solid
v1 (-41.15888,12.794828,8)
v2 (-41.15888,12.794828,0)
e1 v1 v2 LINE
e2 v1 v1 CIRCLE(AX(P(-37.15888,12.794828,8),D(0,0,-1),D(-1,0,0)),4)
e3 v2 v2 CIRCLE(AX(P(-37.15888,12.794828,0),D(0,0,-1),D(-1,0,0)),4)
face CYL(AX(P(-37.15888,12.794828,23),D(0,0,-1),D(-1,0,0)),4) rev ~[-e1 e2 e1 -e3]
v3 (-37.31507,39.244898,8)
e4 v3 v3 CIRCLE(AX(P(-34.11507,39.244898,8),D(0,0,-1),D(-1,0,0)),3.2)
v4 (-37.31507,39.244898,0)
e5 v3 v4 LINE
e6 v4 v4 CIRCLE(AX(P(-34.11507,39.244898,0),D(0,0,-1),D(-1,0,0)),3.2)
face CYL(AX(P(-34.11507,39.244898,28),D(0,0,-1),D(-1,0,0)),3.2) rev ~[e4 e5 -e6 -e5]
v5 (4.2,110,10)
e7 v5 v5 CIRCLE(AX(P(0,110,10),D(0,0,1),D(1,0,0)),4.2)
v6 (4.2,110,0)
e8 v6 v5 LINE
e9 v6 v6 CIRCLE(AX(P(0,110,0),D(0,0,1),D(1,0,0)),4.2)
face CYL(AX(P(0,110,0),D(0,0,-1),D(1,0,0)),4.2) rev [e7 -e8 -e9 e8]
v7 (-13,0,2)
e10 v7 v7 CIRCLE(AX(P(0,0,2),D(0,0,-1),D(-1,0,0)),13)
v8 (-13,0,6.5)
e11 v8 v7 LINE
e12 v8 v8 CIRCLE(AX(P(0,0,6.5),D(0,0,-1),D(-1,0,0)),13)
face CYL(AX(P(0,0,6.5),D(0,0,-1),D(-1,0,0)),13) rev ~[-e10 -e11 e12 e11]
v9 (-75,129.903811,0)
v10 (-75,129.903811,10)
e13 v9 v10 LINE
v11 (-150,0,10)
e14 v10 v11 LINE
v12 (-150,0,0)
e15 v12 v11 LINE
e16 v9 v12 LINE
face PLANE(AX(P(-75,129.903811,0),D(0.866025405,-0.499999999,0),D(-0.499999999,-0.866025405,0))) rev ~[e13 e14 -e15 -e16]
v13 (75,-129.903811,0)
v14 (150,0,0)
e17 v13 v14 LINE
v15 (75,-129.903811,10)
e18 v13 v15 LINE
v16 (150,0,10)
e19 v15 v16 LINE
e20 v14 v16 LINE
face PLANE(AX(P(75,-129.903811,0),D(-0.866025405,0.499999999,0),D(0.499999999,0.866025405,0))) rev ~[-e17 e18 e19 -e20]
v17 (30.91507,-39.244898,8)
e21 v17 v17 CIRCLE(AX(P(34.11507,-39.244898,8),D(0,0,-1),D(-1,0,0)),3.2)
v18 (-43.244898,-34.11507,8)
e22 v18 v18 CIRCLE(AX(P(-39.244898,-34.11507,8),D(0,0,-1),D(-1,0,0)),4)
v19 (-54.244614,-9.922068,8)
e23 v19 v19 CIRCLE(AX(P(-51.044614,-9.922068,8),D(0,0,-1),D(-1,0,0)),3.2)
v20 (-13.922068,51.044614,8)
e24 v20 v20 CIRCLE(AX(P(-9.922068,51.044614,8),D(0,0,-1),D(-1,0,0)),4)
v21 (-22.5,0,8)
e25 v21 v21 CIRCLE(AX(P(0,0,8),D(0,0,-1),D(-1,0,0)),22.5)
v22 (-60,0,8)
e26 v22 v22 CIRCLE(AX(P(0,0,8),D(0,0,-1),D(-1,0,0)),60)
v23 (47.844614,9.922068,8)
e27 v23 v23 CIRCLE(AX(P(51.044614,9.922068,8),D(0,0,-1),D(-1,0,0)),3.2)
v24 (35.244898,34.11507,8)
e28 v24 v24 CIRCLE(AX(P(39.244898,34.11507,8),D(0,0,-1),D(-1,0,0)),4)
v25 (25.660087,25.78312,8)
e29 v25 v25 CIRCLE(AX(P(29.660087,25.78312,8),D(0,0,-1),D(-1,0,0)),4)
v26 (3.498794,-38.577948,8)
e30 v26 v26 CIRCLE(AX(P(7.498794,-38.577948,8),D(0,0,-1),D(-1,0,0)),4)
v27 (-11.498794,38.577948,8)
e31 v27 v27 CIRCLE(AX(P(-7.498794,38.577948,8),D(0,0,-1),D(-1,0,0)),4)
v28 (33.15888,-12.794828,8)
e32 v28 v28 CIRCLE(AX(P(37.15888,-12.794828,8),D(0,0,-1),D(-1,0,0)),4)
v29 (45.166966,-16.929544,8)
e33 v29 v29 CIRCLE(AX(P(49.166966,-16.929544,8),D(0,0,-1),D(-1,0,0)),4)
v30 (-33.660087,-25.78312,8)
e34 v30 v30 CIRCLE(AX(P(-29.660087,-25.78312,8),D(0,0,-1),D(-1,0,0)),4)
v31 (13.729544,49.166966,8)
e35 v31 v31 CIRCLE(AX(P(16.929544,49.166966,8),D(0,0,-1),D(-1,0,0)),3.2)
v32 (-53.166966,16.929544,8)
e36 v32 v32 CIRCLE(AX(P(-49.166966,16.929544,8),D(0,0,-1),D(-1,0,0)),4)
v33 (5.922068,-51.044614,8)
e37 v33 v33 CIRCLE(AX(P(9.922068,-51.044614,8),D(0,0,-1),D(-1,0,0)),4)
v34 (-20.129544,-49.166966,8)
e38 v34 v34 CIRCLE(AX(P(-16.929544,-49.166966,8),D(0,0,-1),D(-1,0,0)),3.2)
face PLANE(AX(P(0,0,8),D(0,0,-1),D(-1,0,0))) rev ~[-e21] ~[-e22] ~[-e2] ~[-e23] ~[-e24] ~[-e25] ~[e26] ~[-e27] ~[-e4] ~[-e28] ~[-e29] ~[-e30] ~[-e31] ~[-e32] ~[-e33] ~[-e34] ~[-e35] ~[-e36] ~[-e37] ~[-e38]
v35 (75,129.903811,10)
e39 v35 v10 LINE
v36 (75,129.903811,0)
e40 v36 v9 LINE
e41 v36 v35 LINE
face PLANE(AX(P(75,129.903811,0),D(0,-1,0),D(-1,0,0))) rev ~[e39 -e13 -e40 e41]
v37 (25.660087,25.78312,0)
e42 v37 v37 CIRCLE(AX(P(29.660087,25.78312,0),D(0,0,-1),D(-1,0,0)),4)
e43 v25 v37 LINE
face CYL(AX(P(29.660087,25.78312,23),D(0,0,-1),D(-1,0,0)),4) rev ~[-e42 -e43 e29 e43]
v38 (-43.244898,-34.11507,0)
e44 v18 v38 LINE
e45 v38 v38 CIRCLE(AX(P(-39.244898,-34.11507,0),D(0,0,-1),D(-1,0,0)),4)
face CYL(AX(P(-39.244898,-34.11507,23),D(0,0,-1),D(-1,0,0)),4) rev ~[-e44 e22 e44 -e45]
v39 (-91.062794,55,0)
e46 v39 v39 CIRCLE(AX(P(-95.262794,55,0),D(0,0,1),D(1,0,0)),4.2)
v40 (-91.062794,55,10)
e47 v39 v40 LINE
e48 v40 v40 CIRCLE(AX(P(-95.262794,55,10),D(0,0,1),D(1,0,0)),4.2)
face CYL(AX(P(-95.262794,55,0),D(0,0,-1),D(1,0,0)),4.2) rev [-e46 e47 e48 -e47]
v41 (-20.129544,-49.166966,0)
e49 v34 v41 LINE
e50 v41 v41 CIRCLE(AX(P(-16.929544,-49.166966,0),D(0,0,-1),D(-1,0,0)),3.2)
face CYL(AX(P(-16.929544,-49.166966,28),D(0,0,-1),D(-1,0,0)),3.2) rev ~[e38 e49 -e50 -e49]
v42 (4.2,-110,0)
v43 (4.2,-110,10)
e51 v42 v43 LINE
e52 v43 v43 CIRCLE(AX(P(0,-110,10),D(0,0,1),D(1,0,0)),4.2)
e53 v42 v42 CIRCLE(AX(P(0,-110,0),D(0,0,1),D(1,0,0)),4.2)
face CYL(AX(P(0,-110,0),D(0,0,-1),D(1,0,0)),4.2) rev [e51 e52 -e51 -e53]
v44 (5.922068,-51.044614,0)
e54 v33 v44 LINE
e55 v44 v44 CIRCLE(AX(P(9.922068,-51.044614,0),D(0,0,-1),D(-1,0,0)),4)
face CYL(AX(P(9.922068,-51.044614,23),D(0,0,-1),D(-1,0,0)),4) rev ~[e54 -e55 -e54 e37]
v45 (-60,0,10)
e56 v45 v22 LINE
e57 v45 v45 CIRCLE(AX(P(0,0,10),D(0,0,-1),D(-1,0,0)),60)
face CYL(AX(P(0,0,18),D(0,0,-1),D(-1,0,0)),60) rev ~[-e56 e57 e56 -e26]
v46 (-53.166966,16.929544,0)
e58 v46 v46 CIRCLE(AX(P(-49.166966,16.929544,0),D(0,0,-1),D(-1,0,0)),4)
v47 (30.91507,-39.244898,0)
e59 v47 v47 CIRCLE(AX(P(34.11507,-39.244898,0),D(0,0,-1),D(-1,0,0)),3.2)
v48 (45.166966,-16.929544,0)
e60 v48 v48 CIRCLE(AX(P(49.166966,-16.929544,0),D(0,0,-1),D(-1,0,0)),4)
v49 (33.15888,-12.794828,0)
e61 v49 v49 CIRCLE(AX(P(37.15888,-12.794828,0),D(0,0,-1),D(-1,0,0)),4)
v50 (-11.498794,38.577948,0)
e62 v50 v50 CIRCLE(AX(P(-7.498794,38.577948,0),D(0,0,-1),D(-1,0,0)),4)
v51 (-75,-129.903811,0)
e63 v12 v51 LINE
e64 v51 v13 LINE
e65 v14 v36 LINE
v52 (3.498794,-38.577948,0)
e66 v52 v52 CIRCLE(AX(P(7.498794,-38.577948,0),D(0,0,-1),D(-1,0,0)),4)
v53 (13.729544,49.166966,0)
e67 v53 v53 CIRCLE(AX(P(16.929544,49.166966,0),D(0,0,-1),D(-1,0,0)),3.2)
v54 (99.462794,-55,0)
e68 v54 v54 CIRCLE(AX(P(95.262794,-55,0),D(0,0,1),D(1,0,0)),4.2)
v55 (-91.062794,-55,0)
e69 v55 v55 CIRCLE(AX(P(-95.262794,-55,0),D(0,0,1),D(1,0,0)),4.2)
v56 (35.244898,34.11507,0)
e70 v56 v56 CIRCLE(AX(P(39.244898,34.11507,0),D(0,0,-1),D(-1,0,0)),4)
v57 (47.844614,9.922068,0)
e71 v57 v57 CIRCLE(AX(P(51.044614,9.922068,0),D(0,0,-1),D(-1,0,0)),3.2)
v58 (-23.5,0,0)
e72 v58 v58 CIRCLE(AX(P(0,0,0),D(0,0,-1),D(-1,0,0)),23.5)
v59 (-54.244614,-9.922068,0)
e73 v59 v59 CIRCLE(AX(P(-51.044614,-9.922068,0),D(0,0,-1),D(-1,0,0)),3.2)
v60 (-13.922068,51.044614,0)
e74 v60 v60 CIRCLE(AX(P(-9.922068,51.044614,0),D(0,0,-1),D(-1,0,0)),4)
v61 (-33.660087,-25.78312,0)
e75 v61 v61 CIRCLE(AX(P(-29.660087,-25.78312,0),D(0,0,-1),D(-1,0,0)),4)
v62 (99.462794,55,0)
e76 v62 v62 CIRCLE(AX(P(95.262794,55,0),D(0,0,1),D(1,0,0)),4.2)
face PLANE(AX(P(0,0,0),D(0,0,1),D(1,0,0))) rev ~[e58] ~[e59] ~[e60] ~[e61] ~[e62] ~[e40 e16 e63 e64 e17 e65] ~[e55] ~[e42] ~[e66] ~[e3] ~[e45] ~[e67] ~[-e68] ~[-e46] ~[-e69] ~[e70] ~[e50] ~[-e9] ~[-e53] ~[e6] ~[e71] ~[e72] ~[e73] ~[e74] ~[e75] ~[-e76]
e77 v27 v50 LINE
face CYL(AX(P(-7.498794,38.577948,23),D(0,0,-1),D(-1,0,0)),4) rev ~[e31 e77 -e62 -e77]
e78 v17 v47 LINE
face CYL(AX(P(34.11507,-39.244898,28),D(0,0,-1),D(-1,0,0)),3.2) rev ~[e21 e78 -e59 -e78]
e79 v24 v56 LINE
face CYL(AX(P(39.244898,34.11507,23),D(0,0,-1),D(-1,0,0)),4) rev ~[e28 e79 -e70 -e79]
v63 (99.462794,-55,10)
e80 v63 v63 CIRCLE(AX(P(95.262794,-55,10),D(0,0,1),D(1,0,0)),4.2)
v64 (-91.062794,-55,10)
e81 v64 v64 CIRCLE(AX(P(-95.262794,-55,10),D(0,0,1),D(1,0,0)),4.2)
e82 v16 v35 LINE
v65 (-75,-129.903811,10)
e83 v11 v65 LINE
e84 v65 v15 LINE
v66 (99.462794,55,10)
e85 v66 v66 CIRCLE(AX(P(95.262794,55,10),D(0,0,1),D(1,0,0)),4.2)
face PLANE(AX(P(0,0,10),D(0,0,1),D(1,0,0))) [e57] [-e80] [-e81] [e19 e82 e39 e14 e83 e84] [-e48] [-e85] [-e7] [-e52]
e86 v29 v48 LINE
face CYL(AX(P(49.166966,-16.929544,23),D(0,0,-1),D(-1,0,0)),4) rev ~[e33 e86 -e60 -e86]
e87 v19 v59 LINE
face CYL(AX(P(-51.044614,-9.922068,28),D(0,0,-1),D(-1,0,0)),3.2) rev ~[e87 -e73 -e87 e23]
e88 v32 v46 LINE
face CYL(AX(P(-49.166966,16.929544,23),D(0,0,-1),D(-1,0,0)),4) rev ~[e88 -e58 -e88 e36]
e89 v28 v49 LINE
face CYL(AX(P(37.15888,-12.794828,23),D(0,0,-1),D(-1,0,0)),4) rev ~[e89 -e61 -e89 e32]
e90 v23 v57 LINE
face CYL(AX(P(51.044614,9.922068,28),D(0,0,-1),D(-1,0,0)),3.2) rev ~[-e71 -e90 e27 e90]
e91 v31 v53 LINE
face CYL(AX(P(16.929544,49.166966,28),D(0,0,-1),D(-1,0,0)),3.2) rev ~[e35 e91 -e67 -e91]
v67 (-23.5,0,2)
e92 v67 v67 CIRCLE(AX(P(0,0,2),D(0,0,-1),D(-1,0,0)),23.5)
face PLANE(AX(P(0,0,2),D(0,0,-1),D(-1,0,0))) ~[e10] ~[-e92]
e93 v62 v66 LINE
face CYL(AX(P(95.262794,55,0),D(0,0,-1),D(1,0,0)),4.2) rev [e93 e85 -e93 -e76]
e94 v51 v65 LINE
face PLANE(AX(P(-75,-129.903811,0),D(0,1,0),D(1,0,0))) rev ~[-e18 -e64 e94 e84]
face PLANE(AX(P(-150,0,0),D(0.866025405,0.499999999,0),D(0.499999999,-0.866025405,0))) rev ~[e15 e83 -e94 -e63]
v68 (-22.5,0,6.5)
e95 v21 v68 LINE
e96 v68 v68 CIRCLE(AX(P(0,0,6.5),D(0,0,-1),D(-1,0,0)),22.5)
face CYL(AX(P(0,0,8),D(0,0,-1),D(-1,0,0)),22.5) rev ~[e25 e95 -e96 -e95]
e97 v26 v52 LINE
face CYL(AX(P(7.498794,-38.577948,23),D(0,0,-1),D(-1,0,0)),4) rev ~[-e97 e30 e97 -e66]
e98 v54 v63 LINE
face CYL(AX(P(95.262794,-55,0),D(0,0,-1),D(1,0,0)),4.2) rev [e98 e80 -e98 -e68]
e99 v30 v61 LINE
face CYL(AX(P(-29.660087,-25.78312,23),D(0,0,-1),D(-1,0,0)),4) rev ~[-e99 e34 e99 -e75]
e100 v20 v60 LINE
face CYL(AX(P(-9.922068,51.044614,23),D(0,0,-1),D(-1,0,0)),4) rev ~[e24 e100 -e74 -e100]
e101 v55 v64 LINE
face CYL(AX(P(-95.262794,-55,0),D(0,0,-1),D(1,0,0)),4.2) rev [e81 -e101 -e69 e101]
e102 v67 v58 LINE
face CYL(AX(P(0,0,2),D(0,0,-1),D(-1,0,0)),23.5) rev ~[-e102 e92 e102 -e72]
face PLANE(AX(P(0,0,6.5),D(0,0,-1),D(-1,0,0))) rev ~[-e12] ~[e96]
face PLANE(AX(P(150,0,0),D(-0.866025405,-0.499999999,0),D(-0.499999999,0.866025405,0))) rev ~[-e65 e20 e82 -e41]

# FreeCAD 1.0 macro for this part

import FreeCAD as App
import Part
import Sketcher
from FreeCAD import Vector
Q = App.Units.Quantity

doc = App.newDocument("Part")
body = doc.addObject("PartDesign::Body", "Body")

# Sketch on XY plane
sketch1 = doc.addObject("Sketcher::SketchObject", "Sketch")
body.addObject(sketch1)
sketch1.AttachmentSupport = (doc.XY_Plane, [""])
sketch1.MapMode = "FlatFace"
sketch1.addGeometry(Part.LineSegment(Vector(75, -129.9, 0), Vector(150, 0, 0)), False)
sketch1.addGeometry(Part.LineSegment(Vector(150, 0, 0), Vector(75, 129.9, 0)), False)
sketch1.addGeometry(Part.LineSegment(Vector(75, 129.9, 0), Vector(-75, 129.9, 0)), False)
sketch1.addGeometry(Part.LineSegment(Vector(-75, 129.9, 0), Vector(-150, 0, 0)), False)
sketch1.addGeometry(Part.LineSegment(Vector(-150, 0, 0), Vector(-75, -129.9, 0)), False)
sketch1.addGeometry(Part.LineSegment(Vector(-75, -129.9, 0), Vector(75, -129.9, 0)), False)
sketch1.addGeometry(Part.Circle(Vector(-95.3, -55, 0), Vector(0, 0, 1), 4.2), False)
sketch1.addGeometry(Part.Circle(Vector(0, -110, 0), Vector(0, 0, 1), 4.2), False)
sketch1.addGeometry(Part.Circle(Vector(95.3, -55, 0), Vector(0, 0, 1), 4.2), False)
sketch1.addGeometry(Part.Circle(Vector(-95.3, 55, 0), Vector(0, 0, 1), 4.2), False)
sketch1.addGeometry(Part.Circle(Vector(95.3, 55, 0), Vector(0, 0, 1), 4.2), False)
sketch1.addGeometry(Part.Circle(Vector(0, 110, 0), Vector(0, 0, 1), 4.2), False)
sketch1.addConstraint(Sketcher.Constraint("Coincident", 0, 2, 1, 1))
sketch1.addConstraint(Sketcher.Constraint("Coincident", 1, 2, 2, 1))
sketch1.addConstraint(Sketcher.Constraint("Coincident", 2, 2, 3, 1))
sketch1.addConstraint(Sketcher.Constraint("Coincident", 3, 2, 4, 1))
sketch1.addConstraint(Sketcher.Constraint("Coincident", 4, 2, 5, 1))
sketch1.addConstraint(Sketcher.Constraint("Coincident", 5, 2, 0, 1))
sketch1.addConstraint(Sketcher.Constraint("Horizontal", 2))
sketch1.addConstraint(Sketcher.Constraint("Horizontal", 5))
sketch1.addConstraint(Sketcher.Constraint("Equal", 6, 7))
sketch1.addConstraint(Sketcher.Constraint("Equal", 7, 8))
sketch1.addConstraint(Sketcher.Constraint("Equal", 8, 9))
sketch1.addConstraint(Sketcher.Constraint("Equal", 9, 10))
sketch1.addConstraint(Sketcher.Constraint("Equal", 10, 11))
sketch1.addConstraint(Sketcher.Constraint("Symmetric", 8, 3, 9, 3, -1, 1))
sketch1.addConstraint(Sketcher.Constraint("Symmetric", 6, 3, 10, 3, -1, 1))
sketch1.addConstraint(Sketcher.Constraint("Symmetric", 7, 3, 11, 3, -1, 1))
sketch1.addConstraint(Sketcher.Constraint("Symmetric", 0, 2, 3, 2, -1, 1))
sketch1.addConstraint(Sketcher.Constraint("Symmetric", 1, 2, 4, 2, -1, 1))
sketch1.addConstraint(Sketcher.Constraint("Symmetric", 6, 3, 8, 3, -2))
sketch1.addConstraint(Sketcher.Constraint("PointOnObject", 7, 3, -2))
sketch1.addConstraint(Sketcher.Constraint("PointOnObject", 0, 2, -1))
sketch1.addConstraint(Sketcher.Constraint("Parallel", 0, 3))
sketch1.addConstraint(Sketcher.Constraint("Vertical", 2, 2, 4, 2))
sketch1.addConstraint(Sketcher.Constraint("Diameter", 6, 8.4))
sketch1.addConstraint(Sketcher.Constraint("DistanceX", 2, 2, 2, 1, 150.0))
sketch1.addConstraint(Sketcher.Constraint("Angle", 0, Q("60 deg")))
sketch1.addConstraint(Sketcher.Constraint("Distance", 0, 150.0))
sketch1.addConstraint(Sketcher.Constraint("DistanceY", 6, 3, -1, 1, 55.0))
sketch1.addConstraint(Sketcher.Constraint("DistanceY", 7, 3, -1, 1, 110.0))
sketch1.addConstraint(Sketcher.Constraint("DistanceX", 6, 3, 8, 3, 190.525588))
pad1 = doc.addObject("PartDesign::Pad", "Pad")
body.addObject(pad1)
pad1.Profile = sketch1
pad1.Length = 10

# Sketch on XZ plane
sketch2 = doc.addObject("Sketcher::SketchObject", "Sketch001")
body.addObject(sketch2)
sketch2.AttachmentSupport = (doc.XZ_Plane, [""])
sketch2.MapMode = "FlatFace"
sketch2.addGeometry(Part.LineSegment(Vector(-23.5, 2, 0), Vector(-23.5, -10, 0)), False)
sketch2.addGeometry(Part.LineSegment(Vector(-23.5, -10, 0), Vector(0, -10, 0)), False)
sketch2.addGeometry(Part.LineSegment(Vector(0, -10, 0), Vector(0, 18, 0)), False)
sketch2.addGeometry(Part.LineSegment(Vector(0, 18, 0), Vector(-60, 18, 0)), False)
sketch2.addGeometry(Part.LineSegment(Vector(-60, 18, 0), Vector(-60, 8, 0)), False)
sketch2.addGeometry(Part.LineSegment(Vector(-60, 8, 0), Vector(-22.5, 8, 0)), False)
sketch2.addGeometry(Part.LineSegment(Vector(-22.5, 8, 0), Vector(-22.5, 6.5, 0)), False)
sketch2.addGeometry(Part.LineSegment(Vector(-22.5, 6.5, 0), Vector(-13, 6.5, 0)), False)
sketch2.addGeometry(Part.LineSegment(Vector(-13, 6.5, 0), Vector(-13, 2, 0)), False)
sketch2.addGeometry(Part.LineSegment(Vector(-13, 2, 0), Vector(-23.5, 2, 0)), False)
sketch2.addConstraint(Sketcher.Constraint("Coincident", 0, 2, 1, 1))
sketch2.addConstraint(Sketcher.Constraint("Coincident", 1, 2, 2, 1))
sketch2.addConstraint(Sketcher.Constraint("Coincident", 2, 2, 3, 1))
sketch2.addConstraint(Sketcher.Constraint("Coincident", 3, 2, 4, 1))
sketch2.addConstraint(Sketcher.Constraint("Coincident", 4, 2, 5, 1))
sketch2.addConstraint(Sketcher.Constraint("Coincident", 5, 2, 6, 1))
sketch2.addConstraint(Sketcher.Constraint("Coincident", 6, 2, 7, 1))
sketch2.addConstraint(Sketcher.Constraint("Coincident", 7, 2, 8, 1))
sketch2.addConstraint(Sketcher.Constraint("Coincident", 8, 2, 9, 1))
sketch2.addConstraint(Sketcher.Constraint("Coincident", 9, 2, 0, 1))
sketch2.addConstraint(Sketcher.Constraint("Vertical", 0))
sketch2.addConstraint(Sketcher.Constraint("Horizontal", 1))
sketch2.addConstraint(Sketcher.Constraint("Vertical", 2))
sketch2.addConstraint(Sketcher.Constraint("Horizontal", 3))
sketch2.addConstraint(Sketcher.Constraint("Vertical", 4))
sketch2.addConstraint(Sketcher.Constraint("Horizontal", 5))
sketch2.addConstraint(Sketcher.Constraint("Vertical", 6))
sketch2.addConstraint(Sketcher.Constraint("Horizontal", 7))
sketch2.addConstraint(Sketcher.Constraint("Vertical", 8))
sketch2.addConstraint(Sketcher.Constraint("Horizontal", 9))
sketch2.addConstraint(Sketcher.Constraint("PointOnObject", 1, 2, -2))
sketch2.addConstraint(Sketcher.Constraint("DistanceX", 3, 2, 3, 1, 60.0))
sketch2.addConstraint(Sketcher.Constraint("DistanceY", 0, 2, 0, 1, 12.0))
sketch2.addConstraint(Sketcher.Constraint("DistanceY", 2, 1, 2, 2, 28.0))
sketch2.addConstraint(Sketcher.Constraint("DistanceY", 4, 2, 4, 1, 10.0))
sketch2.addConstraint(Sketcher.Constraint("DistanceX", 1, 1, 1, 2, 23.5))
sketch2.addConstraint(Sketcher.Constraint("DistanceX", 5, 1, 5, 2, 37.5))
sketch2.addConstraint(Sketcher.Constraint("DistanceX", 7, 1, 7, 2, 9.5))
sketch2.addConstraint(Sketcher.Constraint("DistanceY", 6, 2, 6, 1, 1.5))
sketch2.addConstraint(Sketcher.Constraint("DistanceY", 0, 2, -1, 1, 10.0))
groove = doc.addObject("PartDesign::Groove", "Groove")
body.addObject(groove)
groove.Profile = sketch2
groove.ReferenceAxis = (sketch2, ["V_Axis"])
groove.Angle = 360

# Sketch on XY plane
sketch3 = doc.addObject("Sketcher::SketchObject", "Sketch002")
body.addObject(sketch3)
sketch3.AttachmentSupport = (doc.XY_Plane, [""])
sketch3.MapMode = "FlatFace"
sketch3.AttachmentOffset = App.Placement(Vector(0, 0, 8), App.Rotation())
sketch3.addGeometry(Part.Circle(Vector(-9.9, 51, 0), Vector(0, 0, 1), 4), False)
sketch3.addGeometry(Part.Circle(Vector(39.2, 34.1, 0), Vector(0, 0, 1), 4), False)
sketch3.addGeometry(Part.Circle(Vector(49.2, -16.9, 0), Vector(0, 0, 1), 4), False)
sketch3.addGeometry(Part.Circle(Vector(9.9, -51, 0), Vector(0, 0, 1), 4), False)
sketch3.addGeometry(Part.Circle(Vector(-39.2, -34.1, 0), Vector(0, 0, 1), 4), False)
sketch3.addGeometry(Part.Circle(Vector(-49.2, 16.9, 0), Vector(0, 0, 1), 4), False)
sketch3.addConstraint(Sketcher.Constraint("Equal", 0, 1))
sketch3.addConstraint(Sketcher.Constraint("Equal", 1, 2))
sketch3.addConstraint(Sketcher.Constraint("Equal", 2, 3))
sketch3.addConstraint(Sketcher.Constraint("Equal", 3, 4))
sketch3.addConstraint(Sketcher.Constraint("Equal", 4, 5))
sketch3.addConstraint(Sketcher.Constraint("Symmetric", 0, 3, 3, 3, -1, 1))
sketch3.addConstraint(Sketcher.Constraint("Symmetric", 1, 3, 4, 3, -1, 1))
sketch3.addConstraint(Sketcher.Constraint("Symmetric", 2, 3, 5, 3, -1, 1))
sketch3.addConstraint(Sketcher.Constraint("Diameter", 0, 8.0))
sketch3.addConstraint(Sketcher.Constraint("DistanceX", 3, 3, 2, 3, 39.244898))
sketch3.addConstraint(Sketcher.Constraint("DistanceY", -1, 1, 1, 3, 34.11507))
sketch3.addConstraint(Sketcher.Constraint("DistanceX", 1, 3, 2, 3, 9.922068))
sketch3.addConstraint(Sketcher.Constraint("DistanceY", 2, 3, 0, 3, 67.974158))
sketch3.addConstraint(Sketcher.Constraint("DistanceY", 3, 3, 2, 3, 34.11507))
sketch3.addConstraint(Sketcher.Constraint("DistanceX", 0, 3, -1, 1, 9.922068))
doc.recompute()
hole = doc.addObject("PartDesign::Hole", "Hole")
body.addObject(hole)
hole.Profile = sketch3
hole.ThreadType = "None"
hole.Diameter = 8
hole.DepthType = "Dimension"
hole.Depth = 15
hole.DrillPoint = "Flat"

# Sketch on XY plane
sketch4 = doc.addObject("Sketcher::SketchObject", "Sketch003")
body.addObject(sketch4)
sketch4.AttachmentSupport = (doc.XY_Plane, [""])
sketch4.MapMode = "FlatFace"
sketch4.AttachmentOffset = App.Placement(Vector(0, 0, 8), App.Rotation())
sketch4.addGeometry(Part.Circle(Vector(-7.5, 38.6, 0), Vector(0, 0, 1), 4), False)
sketch4.addGeometry(Part.Circle(Vector(29.7, 25.8, 0), Vector(0, 0, 1), 4), False)
sketch4.addGeometry(Part.Circle(Vector(37.2, -12.8, 0), Vector(0, 0, 1), 4), False)
sketch4.addGeometry(Part.Circle(Vector(7.5, -38.6, 0), Vector(0, 0, 1), 4), False)
sketch4.addGeometry(Part.Circle(Vector(-29.7, -25.8, 0), Vector(0, 0, 1), 4), False)
sketch4.addGeometry(Part.Circle(Vector(-37.2, 12.8, 0), Vector(0, 0, 1), 4), False)
sketch4.addConstraint(Sketcher.Constraint("Equal", 0, 1))
sketch4.addConstraint(Sketcher.Constraint("Equal", 1, 2))
sketch4.addConstraint(Sketcher.Constraint("Equal", 2, 3))
sketch4.addConstraint(Sketcher.Constraint("Equal", 3, 4))
sketch4.addConstraint(Sketcher.Constraint("Equal", 4, 5))
sketch4.addConstraint(Sketcher.Constraint("Symmetric", 0, 3, 3, 3, -1, 1))
sketch4.addConstraint(Sketcher.Constraint("Symmetric", 1, 3, 4, 3, -1, 1))
sketch4.addConstraint(Sketcher.Constraint("Symmetric", 2, 3, 5, 3, -1, 1))
sketch4.addConstraint(Sketcher.Constraint("Diameter", 0, 8.0))
sketch4.addConstraint(Sketcher.Constraint("DistanceY", -1, 1, 1, 3, 25.78312))
sketch4.addConstraint(Sketcher.Constraint("DistanceX", -1, 1, 2, 3, 37.15888))
sketch4.addConstraint(Sketcher.Constraint("DistanceY", 2, 3, -1, 1, 12.794828))
sketch4.addConstraint(Sketcher.Constraint("DistanceX", 0, 3, 1, 3, 37.158881))
sketch4.addConstraint(Sketcher.Constraint("DistanceY", 3, 3, 2, 3, 25.78312))
sketch4.addConstraint(Sketcher.Constraint("DistanceX", 0, 3, -1, 1, 7.498794))
doc.recompute()
hole2 = doc.addObject("PartDesign::Hole", "Hole001")
body.addObject(hole2)
hole2.Profile = sketch4
hole2.ThreadType = "None"
hole2.Diameter = 8
hole2.DepthType = "Dimension"
hole2.Depth = 15
hole2.DrillPoint = "Flat"

# Sketch on XY plane
sketch5 = doc.addObject("Sketcher::SketchObject", "Sketch004")
body.addObject(sketch5)
sketch5.AttachmentSupport = (doc.XY_Plane, [""])
sketch5.MapMode = "FlatFace"
sketch5.AttachmentOffset = App.Placement(Vector(0, 0, 8), App.Rotation())
sketch5.addGeometry(Part.Circle(Vector(-34.1, 39.2, 0), Vector(0, 0, 1), 3.2), False)
sketch5.addGeometry(Part.Circle(Vector(16.9, 49.2, 0), Vector(0, 0, 1), 3.2), False)
sketch5.addGeometry(Part.Circle(Vector(51, 9.9, 0), Vector(0, 0, 1), 3.2), False)
sketch5.addGeometry(Part.Circle(Vector(34.1, -39.2, 0), Vector(0, 0, 1), 3.2), False)
sketch5.addGeometry(Part.Circle(Vector(-16.9, -49.2, 0), Vector(0, 0, 1), 3.2), False)
sketch5.addGeometry(Part.Circle(Vector(-51, -9.9, 0), Vector(0, 0, 1), 3.2), False)
sketch5.addConstraint(Sketcher.Constraint("Equal", 0, 1))
sketch5.addConstraint(Sketcher.Constraint("Equal", 1, 2))
sketch5.addConstraint(Sketcher.Constraint("Equal", 2, 3))
sketch5.addConstraint(Sketcher.Constraint("Equal", 3, 4))
sketch5.addConstraint(Sketcher.Constraint("Equal", 4, 5))
sketch5.addConstraint(Sketcher.Constraint("Symmetric", 0, 3, 3, 3, -1, 1))
sketch5.addConstraint(Sketcher.Constraint("Symmetric", 1, 3, 4, 3, -1, 1))
sketch5.addConstraint(Sketcher.Constraint("Symmetric", 2, 3, 5, 3, -1, 1))
sketch5.addConstraint(Sketcher.Constraint("Diameter", 0, 6.4))
sketch5.addConstraint(Sketcher.Constraint("DistanceY", 2, 3, 1, 3, 39.244898))
sketch5.addConstraint(Sketcher.Constraint("DistanceX", 0, 3, -1, 1, 34.11507))
sketch5.addConstraint(Sketcher.Constraint("DistanceY", 0, 3, 1, 3, 9.922068))
sketch5.addConstraint(Sketcher.Constraint("DistanceX", 1, 3, 2, 3, 34.11507))
sketch5.addConstraint(Sketcher.Constraint("DistanceX", 4, 3, 2, 3, 67.974158))
sketch5.addConstraint(Sketcher.Constraint("DistanceY", -1, 1, 0, 3, 39.244898))
doc.recompute()
hole3 = doc.addObject("PartDesign::Hole", "Hole002")
body.addObject(hole3)
hole3.Profile = sketch5
hole3.ThreadType = "None"
hole3.Diameter = 6.4
hole3.DepthType = "Dimension"
hole3.Depth = 20
hole3.DrillPoint = "Flat"

doc.recompute()
